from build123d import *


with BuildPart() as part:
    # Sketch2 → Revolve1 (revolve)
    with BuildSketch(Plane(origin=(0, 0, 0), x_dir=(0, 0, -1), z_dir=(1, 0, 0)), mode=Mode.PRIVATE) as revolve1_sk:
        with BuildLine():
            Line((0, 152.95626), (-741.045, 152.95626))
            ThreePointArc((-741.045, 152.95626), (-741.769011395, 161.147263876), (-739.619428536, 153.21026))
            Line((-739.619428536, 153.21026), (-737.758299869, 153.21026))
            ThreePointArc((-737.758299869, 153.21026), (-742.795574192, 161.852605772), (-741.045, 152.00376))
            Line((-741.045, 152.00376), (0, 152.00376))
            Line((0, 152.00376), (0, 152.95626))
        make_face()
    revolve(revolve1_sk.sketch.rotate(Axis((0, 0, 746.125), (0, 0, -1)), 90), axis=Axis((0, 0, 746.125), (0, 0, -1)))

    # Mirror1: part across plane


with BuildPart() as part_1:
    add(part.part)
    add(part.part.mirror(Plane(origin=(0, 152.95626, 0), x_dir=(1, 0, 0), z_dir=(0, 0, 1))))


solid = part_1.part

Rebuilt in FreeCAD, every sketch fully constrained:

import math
import FreeCAD as App
import Part
import Sketcher
Q = App.Units.Quantity

doc = App.newDocument("Part")
body = doc.addObject("PartDesign::Body", "Body")

# Sketch on YZ plane
sketch1 = body.newObject("Sketcher::SketchObject", "Sketch")
sketch1.AttachmentSupport = (doc.getObject("YZ_Plane"), [""])
sketch1.MapMode = "FlatFace"
sketch1.addGeometry(Part.LineSegment(App.Vector(152.95626, 0, 0), App.Vector(152.95626, 741.045, 0)), False)
sketch1.addGeometry(Part.ArcOfCircle(Part.Circle(App.Vector(157.08376, 741.045, 0), App.Vector(0, 0, 1), 4.1275), math.radians(-159.794776), math.radians(180)), False)
sketch1.addGeometry(Part.LineSegment(App.Vector(153.21026, 739.619429, 0), App.Vector(153.21026, 737.7583, 0)), False)
sketch1.addGeometry(Part.ArcOfCircle(Part.Circle(App.Vector(157.08376, 741.045, 0), App.Vector(0, 0, 1), 5.08), math.radians(-139.685091), math.radians(180)), False)
sketch1.addGeometry(Part.LineSegment(App.Vector(152.00376, 741.045, 0), App.Vector(152.00376, 0, 0)), False)
sketch1.addGeometry(Part.LineSegment(App.Vector(152.00376, 0, 0), App.Vector(152.95626, 0, 0)), False)
sketch1.addConstraint(Sketcher.Constraint("Tangent", 0, 2, 1, 2))
sketch1.addConstraint(Sketcher.Constraint("Coincident", 1, 1, 2, 1))
sketch1.addConstraint(Sketcher.Constraint("Coincident", 2, 2, 3, 1))
sketch1.addConstraint(Sketcher.Constraint("Tangent", 3, 2, 4, 1))
sketch1.addConstraint(Sketcher.Constraint("Coincident", 4, 2, 5, 1))
sketch1.addConstraint(Sketcher.Constraint("Coincident", 5, 2, 0, 1))
sketch1.addConstraint(Sketcher.Constraint("Vertical", 0))
sketch1.addConstraint(Sketcher.Constraint("Vertical", 2))
sketch1.addConstraint(Sketcher.Constraint("Vertical", 4))
sketch1.addConstraint(Sketcher.Constraint("Horizontal", 5))
sketch1.addConstraint(Sketcher.Constraint("Coincident", 3, 3, 1, 3))
sketch1.addConstraint(Sketcher.Constraint("PointOnObject", 4, 2, -1))
sketch1.addConstraint(Sketcher.Constraint("Radius", 3, Q("0.2 in")))
sketch1.addConstraint(Sketcher.Constraint("Radius", 1, Q("0.1625 in")))
sketch1.addConstraint(Sketcher.Constraint("DistanceY", 0, 1, 0, 2, Q("29.175 in")))
sketch1.addConstraint(Sketcher.Constraint("DistanceX", 0, 2, 1, 1, Q("0.01 in")))
sketch1.addConstraint(Sketcher.Constraint("DistanceX", -1, 1, 1, 3, Q("6.1844 in")))
revolution = body.newObject("PartDesign::Revolution", "Revolution")
revolution.Profile = sketch1
revolution.ReferenceAxis = (sketch1, ["V_Axis"])
revolution.Angle = 360
body2 = doc.addObject("PartDesign::Body", "Body001")
doc.recompute()

body2.BaseFeature = body
doc.recompute()

mirroring = doc.addObject("Part::Mirroring", "Mirroring")
mirroring.Source = body
mirroring.Base = App.Vector(0, 152.95626, 0)
mirroring.Normal = App.Vector(0, 0, 1)
body3 = doc.addObject("PartDesign::Body", "Body002")
body3.BaseFeature = mirroring
boolean = body2.newObject("PartDesign::Boolean", "Boolean")
boolean.Type = "Fuse"
boolean.addObjects([body3])
doc.recompute()
mirroring.Visibility = False

doc.recompute()
